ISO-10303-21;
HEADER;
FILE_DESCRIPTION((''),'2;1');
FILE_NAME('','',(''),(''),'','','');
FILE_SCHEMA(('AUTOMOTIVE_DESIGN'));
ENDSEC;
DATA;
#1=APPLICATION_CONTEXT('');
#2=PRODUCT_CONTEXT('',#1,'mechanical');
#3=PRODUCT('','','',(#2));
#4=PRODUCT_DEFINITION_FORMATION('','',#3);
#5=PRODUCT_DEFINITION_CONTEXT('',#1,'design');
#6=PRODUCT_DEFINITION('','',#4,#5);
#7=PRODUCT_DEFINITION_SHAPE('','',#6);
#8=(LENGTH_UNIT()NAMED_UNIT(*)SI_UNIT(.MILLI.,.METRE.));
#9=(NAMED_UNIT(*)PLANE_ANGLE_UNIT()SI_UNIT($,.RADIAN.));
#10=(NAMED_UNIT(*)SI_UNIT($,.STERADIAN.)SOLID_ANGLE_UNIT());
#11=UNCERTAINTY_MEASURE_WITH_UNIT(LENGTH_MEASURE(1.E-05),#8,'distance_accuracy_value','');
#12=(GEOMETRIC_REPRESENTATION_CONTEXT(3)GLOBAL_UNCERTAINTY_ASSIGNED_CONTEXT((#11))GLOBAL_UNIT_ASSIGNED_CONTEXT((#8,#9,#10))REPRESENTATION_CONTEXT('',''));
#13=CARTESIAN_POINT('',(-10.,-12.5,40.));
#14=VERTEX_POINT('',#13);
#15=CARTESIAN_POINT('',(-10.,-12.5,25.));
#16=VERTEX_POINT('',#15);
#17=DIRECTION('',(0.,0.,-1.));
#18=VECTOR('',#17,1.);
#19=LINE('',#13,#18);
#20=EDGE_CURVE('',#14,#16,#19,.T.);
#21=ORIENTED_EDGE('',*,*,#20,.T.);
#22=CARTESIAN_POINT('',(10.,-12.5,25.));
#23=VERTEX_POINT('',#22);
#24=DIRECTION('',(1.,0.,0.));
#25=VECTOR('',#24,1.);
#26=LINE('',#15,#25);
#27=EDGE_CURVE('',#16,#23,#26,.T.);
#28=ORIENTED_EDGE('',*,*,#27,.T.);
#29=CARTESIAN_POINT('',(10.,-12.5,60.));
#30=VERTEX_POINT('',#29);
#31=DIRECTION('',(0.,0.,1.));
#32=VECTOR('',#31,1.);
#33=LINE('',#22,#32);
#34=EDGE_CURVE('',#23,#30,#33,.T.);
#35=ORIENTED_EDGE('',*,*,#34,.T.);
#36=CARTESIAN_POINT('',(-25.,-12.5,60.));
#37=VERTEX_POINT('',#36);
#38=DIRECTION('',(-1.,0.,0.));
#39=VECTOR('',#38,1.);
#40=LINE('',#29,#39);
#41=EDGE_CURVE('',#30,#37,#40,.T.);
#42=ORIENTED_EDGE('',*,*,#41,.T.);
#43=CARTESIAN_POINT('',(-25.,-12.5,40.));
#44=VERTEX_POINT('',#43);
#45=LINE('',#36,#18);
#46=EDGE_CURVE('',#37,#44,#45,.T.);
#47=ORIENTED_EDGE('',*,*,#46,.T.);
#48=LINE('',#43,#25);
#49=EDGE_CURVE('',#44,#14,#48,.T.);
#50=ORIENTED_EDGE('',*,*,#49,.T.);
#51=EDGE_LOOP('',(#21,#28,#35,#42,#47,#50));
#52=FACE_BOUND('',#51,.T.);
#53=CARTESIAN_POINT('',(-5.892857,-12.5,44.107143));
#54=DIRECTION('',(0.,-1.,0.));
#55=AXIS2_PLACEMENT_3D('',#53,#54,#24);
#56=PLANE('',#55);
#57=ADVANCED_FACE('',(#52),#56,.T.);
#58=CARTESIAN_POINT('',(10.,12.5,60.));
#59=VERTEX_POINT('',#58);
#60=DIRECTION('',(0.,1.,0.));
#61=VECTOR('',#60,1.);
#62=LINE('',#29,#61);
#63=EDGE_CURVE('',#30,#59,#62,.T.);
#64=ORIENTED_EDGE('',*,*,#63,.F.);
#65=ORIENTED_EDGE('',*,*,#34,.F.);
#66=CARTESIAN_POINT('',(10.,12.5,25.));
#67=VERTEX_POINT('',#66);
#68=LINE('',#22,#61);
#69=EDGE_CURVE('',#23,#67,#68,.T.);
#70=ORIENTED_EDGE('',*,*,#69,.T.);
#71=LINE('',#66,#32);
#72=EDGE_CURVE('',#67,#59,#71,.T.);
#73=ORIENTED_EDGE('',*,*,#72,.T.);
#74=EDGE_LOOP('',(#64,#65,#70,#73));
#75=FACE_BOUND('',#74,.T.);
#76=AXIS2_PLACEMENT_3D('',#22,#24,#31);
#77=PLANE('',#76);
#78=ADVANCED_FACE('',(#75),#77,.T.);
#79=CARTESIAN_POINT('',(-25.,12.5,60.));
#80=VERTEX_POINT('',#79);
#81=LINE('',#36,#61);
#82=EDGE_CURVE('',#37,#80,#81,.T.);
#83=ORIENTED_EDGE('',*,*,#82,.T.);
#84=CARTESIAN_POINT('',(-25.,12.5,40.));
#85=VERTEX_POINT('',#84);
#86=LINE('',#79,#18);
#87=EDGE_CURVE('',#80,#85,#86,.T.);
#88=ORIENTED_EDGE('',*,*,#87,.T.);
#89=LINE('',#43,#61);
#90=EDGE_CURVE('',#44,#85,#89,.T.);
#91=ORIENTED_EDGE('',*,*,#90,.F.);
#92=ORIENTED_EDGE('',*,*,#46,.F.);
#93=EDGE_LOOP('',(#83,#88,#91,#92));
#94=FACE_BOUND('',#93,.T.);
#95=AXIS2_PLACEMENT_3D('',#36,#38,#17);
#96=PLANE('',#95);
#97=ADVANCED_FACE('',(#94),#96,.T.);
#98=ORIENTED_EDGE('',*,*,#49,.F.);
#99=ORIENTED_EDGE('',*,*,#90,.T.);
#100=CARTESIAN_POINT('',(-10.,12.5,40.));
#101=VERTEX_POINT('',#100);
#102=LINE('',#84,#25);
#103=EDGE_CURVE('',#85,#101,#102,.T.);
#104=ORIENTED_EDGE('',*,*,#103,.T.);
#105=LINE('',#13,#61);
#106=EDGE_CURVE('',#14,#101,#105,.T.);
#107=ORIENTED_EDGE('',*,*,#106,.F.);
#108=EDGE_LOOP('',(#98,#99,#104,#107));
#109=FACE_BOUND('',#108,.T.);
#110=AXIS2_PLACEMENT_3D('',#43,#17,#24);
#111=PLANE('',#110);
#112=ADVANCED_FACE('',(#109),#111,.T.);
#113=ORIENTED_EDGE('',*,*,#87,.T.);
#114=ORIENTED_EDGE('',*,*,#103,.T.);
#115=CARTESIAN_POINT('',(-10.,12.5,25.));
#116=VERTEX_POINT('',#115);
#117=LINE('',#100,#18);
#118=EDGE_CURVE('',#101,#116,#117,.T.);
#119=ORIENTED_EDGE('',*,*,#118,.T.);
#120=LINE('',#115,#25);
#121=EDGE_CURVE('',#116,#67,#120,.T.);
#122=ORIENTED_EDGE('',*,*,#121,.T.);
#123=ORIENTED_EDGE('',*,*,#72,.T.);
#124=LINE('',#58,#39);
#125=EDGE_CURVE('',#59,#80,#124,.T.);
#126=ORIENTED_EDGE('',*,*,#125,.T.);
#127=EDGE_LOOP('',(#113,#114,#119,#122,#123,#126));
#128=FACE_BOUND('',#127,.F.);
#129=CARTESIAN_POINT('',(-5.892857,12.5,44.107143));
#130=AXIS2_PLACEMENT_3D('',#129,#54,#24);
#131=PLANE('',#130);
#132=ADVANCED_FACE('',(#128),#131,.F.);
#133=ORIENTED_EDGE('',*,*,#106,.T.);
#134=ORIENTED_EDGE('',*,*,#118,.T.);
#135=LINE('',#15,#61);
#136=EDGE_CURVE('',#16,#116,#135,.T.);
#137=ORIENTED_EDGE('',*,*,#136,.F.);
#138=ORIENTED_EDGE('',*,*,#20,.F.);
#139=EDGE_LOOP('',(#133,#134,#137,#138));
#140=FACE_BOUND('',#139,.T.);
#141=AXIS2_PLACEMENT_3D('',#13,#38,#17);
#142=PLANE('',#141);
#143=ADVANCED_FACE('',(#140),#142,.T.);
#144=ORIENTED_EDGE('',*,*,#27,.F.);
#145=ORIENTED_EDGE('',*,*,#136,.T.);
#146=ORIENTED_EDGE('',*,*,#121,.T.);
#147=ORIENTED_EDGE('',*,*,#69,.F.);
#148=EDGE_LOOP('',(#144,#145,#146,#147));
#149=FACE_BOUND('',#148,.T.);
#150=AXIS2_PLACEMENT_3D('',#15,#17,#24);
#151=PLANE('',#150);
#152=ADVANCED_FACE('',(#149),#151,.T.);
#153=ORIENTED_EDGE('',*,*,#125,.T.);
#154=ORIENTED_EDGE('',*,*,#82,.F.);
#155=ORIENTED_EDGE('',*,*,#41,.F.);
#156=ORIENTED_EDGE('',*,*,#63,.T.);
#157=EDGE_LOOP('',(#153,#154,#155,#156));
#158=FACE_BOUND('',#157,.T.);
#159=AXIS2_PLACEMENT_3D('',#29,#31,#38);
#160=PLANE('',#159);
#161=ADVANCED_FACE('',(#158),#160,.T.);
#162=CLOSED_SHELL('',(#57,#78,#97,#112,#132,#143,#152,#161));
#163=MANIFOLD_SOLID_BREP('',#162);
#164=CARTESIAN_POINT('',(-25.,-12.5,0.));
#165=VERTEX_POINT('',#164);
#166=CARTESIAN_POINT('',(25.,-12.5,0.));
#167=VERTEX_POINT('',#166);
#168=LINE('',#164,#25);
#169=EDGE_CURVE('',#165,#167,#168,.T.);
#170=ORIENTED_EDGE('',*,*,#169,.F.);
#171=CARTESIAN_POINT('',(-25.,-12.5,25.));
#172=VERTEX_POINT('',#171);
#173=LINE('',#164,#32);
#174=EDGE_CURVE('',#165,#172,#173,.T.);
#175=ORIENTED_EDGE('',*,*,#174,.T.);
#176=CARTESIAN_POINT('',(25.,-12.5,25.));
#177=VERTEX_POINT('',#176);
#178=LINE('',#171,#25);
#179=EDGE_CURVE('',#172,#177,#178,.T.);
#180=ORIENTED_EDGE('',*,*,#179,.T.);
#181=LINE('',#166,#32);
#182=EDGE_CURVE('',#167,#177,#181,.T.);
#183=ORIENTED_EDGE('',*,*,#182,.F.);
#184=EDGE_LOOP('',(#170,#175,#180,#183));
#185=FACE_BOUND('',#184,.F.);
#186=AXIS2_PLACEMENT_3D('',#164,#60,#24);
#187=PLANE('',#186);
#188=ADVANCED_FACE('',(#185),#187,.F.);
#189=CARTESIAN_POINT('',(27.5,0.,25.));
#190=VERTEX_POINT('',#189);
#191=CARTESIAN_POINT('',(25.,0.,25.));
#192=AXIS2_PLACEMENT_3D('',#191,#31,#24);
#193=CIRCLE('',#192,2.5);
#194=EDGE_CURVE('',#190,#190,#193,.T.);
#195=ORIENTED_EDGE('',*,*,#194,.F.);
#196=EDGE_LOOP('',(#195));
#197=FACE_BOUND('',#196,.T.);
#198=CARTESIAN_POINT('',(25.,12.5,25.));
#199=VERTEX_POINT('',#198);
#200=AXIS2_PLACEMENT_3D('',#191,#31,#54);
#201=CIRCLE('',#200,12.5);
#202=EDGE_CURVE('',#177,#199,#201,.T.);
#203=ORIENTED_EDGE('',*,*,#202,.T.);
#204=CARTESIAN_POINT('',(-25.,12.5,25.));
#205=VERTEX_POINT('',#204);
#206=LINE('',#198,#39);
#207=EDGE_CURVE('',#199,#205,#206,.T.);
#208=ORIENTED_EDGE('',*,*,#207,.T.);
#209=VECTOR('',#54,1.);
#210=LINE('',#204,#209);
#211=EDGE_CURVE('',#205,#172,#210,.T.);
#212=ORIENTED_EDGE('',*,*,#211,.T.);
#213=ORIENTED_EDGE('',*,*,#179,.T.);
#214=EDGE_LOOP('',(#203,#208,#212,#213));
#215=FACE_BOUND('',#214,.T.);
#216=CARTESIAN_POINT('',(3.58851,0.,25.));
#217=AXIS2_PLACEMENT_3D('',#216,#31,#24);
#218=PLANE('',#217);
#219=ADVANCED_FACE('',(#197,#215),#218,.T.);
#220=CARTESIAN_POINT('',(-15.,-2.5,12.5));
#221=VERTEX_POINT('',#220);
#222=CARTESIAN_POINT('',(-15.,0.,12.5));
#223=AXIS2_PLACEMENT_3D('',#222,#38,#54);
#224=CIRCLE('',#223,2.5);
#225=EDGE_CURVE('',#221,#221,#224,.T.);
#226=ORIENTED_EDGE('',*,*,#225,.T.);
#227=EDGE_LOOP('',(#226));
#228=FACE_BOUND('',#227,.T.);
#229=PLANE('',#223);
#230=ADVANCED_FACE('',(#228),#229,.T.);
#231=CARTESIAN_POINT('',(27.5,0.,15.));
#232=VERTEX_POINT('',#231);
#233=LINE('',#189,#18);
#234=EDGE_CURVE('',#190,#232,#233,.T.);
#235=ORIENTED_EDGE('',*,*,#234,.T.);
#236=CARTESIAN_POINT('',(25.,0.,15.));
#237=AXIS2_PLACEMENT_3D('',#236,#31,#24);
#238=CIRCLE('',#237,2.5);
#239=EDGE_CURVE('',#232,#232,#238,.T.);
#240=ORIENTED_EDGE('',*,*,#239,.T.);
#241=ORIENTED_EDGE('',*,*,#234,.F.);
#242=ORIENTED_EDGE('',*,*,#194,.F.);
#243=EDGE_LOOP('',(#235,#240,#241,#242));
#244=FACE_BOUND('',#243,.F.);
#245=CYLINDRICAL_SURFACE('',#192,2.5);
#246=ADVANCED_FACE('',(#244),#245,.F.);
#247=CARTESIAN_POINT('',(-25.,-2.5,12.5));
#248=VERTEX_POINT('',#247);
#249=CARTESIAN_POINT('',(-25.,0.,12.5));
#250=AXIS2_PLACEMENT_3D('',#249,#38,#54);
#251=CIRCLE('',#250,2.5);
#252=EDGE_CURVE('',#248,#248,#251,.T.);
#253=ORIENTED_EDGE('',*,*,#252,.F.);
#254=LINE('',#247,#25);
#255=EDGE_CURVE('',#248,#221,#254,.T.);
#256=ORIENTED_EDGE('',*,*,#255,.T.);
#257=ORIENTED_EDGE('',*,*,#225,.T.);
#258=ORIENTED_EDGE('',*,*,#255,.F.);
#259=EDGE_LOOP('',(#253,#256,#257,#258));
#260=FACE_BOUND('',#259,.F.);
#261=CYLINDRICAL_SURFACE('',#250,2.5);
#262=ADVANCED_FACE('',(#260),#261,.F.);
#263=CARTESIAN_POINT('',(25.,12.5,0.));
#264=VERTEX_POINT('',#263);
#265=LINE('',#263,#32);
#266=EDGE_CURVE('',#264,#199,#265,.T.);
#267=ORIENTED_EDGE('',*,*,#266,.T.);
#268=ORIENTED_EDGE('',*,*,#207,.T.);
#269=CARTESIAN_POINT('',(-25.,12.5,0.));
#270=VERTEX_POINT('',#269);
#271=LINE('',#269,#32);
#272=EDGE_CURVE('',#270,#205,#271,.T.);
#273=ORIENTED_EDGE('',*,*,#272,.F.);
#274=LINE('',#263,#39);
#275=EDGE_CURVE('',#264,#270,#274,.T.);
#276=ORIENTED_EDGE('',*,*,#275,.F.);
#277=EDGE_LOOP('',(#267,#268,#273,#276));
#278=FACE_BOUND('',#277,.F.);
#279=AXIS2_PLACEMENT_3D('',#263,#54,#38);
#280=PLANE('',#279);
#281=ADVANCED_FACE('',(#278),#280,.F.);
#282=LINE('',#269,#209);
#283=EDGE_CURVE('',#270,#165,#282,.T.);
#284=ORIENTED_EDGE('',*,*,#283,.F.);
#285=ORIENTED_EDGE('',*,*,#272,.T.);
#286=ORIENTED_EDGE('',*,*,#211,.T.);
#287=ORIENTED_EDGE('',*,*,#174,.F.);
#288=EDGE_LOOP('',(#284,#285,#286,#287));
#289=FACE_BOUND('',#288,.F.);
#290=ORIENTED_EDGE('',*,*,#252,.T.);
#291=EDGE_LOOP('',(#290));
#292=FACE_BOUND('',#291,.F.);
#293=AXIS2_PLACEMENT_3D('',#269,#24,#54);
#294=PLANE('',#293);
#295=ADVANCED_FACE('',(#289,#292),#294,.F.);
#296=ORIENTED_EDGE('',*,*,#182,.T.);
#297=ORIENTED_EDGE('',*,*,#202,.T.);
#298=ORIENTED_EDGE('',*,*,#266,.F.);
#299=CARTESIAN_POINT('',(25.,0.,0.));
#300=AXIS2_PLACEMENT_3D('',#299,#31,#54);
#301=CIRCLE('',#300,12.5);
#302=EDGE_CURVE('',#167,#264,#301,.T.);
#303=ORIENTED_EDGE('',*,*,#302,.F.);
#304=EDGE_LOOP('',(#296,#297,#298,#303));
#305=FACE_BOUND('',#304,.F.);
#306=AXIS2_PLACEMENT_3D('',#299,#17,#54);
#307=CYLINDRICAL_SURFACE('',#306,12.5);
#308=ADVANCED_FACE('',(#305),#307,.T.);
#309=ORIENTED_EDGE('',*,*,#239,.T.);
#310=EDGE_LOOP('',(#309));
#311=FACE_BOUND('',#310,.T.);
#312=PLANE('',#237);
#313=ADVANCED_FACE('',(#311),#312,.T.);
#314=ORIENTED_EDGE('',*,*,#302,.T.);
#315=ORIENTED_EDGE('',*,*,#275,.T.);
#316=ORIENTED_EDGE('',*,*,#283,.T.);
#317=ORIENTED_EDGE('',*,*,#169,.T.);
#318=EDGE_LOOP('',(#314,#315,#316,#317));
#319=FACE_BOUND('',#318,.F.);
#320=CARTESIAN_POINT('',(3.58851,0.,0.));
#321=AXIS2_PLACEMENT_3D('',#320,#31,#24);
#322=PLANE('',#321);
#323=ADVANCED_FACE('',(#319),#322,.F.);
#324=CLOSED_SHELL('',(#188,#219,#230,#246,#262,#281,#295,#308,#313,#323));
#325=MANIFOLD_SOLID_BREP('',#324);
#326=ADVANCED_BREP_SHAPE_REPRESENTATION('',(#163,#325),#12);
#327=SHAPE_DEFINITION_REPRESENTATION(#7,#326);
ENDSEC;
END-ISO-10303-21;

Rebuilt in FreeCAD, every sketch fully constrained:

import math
import FreeCAD as App
import Part
import Sketcher
from FreeCAD import Vector

doc = App.newDocument("Part")
params = doc.addObject("Spreadsheet::Sheet", "Params")
for row, (alias, value) in enumerate([
    ("sketch1_radius", "12.5 mm"),
    ("sketch1_width", "50 mm"),
    ("pad1_length", "25 mm"),
    ("sketch2_diameter", "5 mm"),
    ("pocket1_length", "10 mm"),
    ("sketch3_diameter", "5 mm"),
    ("pocket2_length", "10 mm"),
    ("sketch4_width", "20 mm"),
    ("sketch4_width2", "35 mm"),
    ("pad2_length", "25 mm"),
], start=1):
    params.set(f"A{row}", alias)
    params.set(f"B{row}", "=" + value)
    params.setAlias(f"B{row}", alias)

body = doc.addObject("PartDesign::Body", "Body")

# Sketch on XY plane
sketch1 = doc.addObject("Sketcher::SketchObject", "Sketch")
body.addObject(sketch1)
sketch1.AttachmentSupport = (doc.XY_Plane, [""])
sketch1.MapMode = "FlatFace"
sketch1.addGeometry([
    Part.ArcOfCircle(Part.Circle(Vector(25, 0, 0), Vector(0, 0, 1), 12), math.radians(-90), math.radians(90)),
    Part.LineSegment(Vector(25, 12, 0), Vector(-25, 12, 0)),
    Part.LineSegment(Vector(-25, 12, 0), Vector(-25, -12, 0)),
    Part.LineSegment(Vector(-25, -12, 0), Vector(25, -12, 0)),
], False)
sketch1.addConstraint([
    Sketcher.Constraint("Tangent", 0, 2, 1, 1),
    Sketcher.Constraint("Coincident", 1, 2, 2, 1),
    Sketcher.Constraint("Coincident", 2, 2, 3, 1),
    Sketcher.Constraint("Tangent", 3, 2, 0, 1),
    Sketcher.Constraint("Horizontal", 1),
    Sketcher.Constraint("Vertical", 2),
    Sketcher.Constraint("Horizontal", 3),
    Sketcher.Constraint("Symmetric", 0, 2, 2, 2, -1, 1),
    Sketcher.Constraint("Radius", 0, 12.5),
    Sketcher.Constraint("DistanceX", 1, 2, 1, 1, 50.0),
])
sketch1.setExpression("Constraints[8]", "Params.sketch1_radius")
sketch1.setExpression("Constraints[9]", "Params.sketch1_width")
pad1 = doc.addObject("PartDesign::Pad", "Pad")
body.addObject(pad1)
pad1.Profile = sketch1
pad1.setExpression("Length", "Params.pad1_length")

# Sketch on XY plane
sketch2 = doc.addObject("Sketcher::SketchObject", "Sketch001")
body.addObject(sketch2)
sketch2.AttachmentSupport = (doc.XY_Plane, [""])
sketch2.MapMode = "FlatFace"
sketch2.AttachmentOffset = App.Placement(Vector(0, 0, 25), App.Rotation())
sketch2.addGeometry(Part.Circle(Vector(25, 0, 0), Vector(0, 0, 1), 2.5), False)
sketch2.addConstraint([
    Sketcher.Constraint("PointOnObject", 0, 3, -1),
    Sketcher.Constraint("Diameter", 0, 5.0),
    Sketcher.Constraint("DistanceX", -1, 1, 0, 3, 25.0),
])
sketch2.setExpression("Constraints[1]", "Params.sketch2_diameter")
pocket1 = doc.addObject("PartDesign::Pocket", "Pocket")
body.addObject(pocket1)
pocket1.Profile = sketch2
pocket1.setExpression("Length", "Params.pocket1_length")

# Sketch on YZ plane
sketch3 = doc.addObject("Sketcher::SketchObject", "Sketch002")
body.addObject(sketch3)
sketch3.AttachmentSupport = (doc.YZ_Plane, [""])
sketch3.MapMode = "FlatFace"
sketch3.AttachmentOffset = App.Placement(Vector(0, 0, -25), App.Rotation())
sketch3.addGeometry(Part.Circle(Vector(0, 12.5, 0), Vector(0, 0, 1), 2.5), False)
sketch3.addConstraint([
    Sketcher.Constraint("PointOnObject", 0, 3, -2),
    Sketcher.Constraint("Diameter", 0, 5.0),
    Sketcher.Constraint("DistanceY", -1, 1, 0, 3, 12.5),
])
sketch3.setExpression("Constraints[1]", "Params.sketch3_diameter")
pocket2 = doc.addObject("PartDesign::Pocket", "Pocket001")
body.addObject(pocket2)
pocket2.Profile = sketch3
pocket2.setExpression("Length", "Params.pocket2_length")
pocket2.Reversed = True
body2 = doc.addObject("PartDesign::Body", "Body001")

# Sketch on XZ plane
sketch4 = doc.addObject("Sketcher::SketchObject", "Sketch003")
body2.addObject(sketch4)
sketch4.AttachmentSupport = (doc.getObject("XZ_Plane001"), [""])
sketch4.MapMode = "FlatFace"
sketch4.AttachmentOffset = App.Placement(Vector(0, 0, 12.5), App.Rotation())
sketch4.addGeometry([
    Part.LineSegment(Vector(-10, 40, 0), Vector(-10, 25, 0)),  # 0
    Part.LineSegment(Vector(-10, 25, 0), Vector(10, 25, 0)),  # 1
    Part.LineSegment(Vector(10, 25, 0), Vector(10, 60, 0)),  # 2
    Part.LineSegment(Vector(10, 60, 0), Vector(-25, 60, 0)),  # 3
    Part.LineSegment(Vector(-25, 60, 0), Vector(-25, 40, 0)),  # 4
    Part.LineSegment(Vector(-25, 40, 0), Vector(-10, 40, 0)),  # 5
], False)
sketch4.addConstraint([
    Sketcher.Constraint("Coincident", 0, 2, 1, 1),
    Sketcher.Constraint("Coincident", 1, 2, 2, 1),
    Sketcher.Constraint("Coincident", 2, 2, 3, 1),
    Sketcher.Constraint("Coincident", 3, 2, 4, 1),
    Sketcher.Constraint("Coincident", 4, 2, 5, 1),
    Sketcher.Constraint("Coincident", 5, 2, 0, 1),
    Sketcher.Constraint("Vertical", 0),
    Sketcher.Constraint("Horizontal", 1),
    Sketcher.Constraint("Vertical", 2),
    Sketcher.Constraint("Horizontal", 3),
    Sketcher.Constraint("Vertical", 4),
    Sketcher.Constraint("Horizontal", 5),
    Sketcher.Constraint("Equal", 5, 0),
    Sketcher.Constraint("Equal", 3, 2),
    Sketcher.Constraint("DistanceX", 1, 1, 1, 2, 20.0),
    Sketcher.Constraint("DistanceX", 3, 2, 3, 1, 35.0),
    Sketcher.Constraint("DistanceX", 0, 2, -1, 1, 10.0),
    Sketcher.Constraint("DistanceY", -1, 1, 0, 2, 25.0),
])
sketch4.setExpression("Constraints[14]", "Params.sketch4_width")
sketch4.setExpression("Constraints[15]", "Params.sketch4_width2")
pad2 = doc.addObject("PartDesign::Pad", "Pad001")
body2.addObject(pad2)
pad2.Profile = sketch4
pad2.setExpression("Length", "Params.pad2_length")
pad2.Reversed = True

doc.recompute()
